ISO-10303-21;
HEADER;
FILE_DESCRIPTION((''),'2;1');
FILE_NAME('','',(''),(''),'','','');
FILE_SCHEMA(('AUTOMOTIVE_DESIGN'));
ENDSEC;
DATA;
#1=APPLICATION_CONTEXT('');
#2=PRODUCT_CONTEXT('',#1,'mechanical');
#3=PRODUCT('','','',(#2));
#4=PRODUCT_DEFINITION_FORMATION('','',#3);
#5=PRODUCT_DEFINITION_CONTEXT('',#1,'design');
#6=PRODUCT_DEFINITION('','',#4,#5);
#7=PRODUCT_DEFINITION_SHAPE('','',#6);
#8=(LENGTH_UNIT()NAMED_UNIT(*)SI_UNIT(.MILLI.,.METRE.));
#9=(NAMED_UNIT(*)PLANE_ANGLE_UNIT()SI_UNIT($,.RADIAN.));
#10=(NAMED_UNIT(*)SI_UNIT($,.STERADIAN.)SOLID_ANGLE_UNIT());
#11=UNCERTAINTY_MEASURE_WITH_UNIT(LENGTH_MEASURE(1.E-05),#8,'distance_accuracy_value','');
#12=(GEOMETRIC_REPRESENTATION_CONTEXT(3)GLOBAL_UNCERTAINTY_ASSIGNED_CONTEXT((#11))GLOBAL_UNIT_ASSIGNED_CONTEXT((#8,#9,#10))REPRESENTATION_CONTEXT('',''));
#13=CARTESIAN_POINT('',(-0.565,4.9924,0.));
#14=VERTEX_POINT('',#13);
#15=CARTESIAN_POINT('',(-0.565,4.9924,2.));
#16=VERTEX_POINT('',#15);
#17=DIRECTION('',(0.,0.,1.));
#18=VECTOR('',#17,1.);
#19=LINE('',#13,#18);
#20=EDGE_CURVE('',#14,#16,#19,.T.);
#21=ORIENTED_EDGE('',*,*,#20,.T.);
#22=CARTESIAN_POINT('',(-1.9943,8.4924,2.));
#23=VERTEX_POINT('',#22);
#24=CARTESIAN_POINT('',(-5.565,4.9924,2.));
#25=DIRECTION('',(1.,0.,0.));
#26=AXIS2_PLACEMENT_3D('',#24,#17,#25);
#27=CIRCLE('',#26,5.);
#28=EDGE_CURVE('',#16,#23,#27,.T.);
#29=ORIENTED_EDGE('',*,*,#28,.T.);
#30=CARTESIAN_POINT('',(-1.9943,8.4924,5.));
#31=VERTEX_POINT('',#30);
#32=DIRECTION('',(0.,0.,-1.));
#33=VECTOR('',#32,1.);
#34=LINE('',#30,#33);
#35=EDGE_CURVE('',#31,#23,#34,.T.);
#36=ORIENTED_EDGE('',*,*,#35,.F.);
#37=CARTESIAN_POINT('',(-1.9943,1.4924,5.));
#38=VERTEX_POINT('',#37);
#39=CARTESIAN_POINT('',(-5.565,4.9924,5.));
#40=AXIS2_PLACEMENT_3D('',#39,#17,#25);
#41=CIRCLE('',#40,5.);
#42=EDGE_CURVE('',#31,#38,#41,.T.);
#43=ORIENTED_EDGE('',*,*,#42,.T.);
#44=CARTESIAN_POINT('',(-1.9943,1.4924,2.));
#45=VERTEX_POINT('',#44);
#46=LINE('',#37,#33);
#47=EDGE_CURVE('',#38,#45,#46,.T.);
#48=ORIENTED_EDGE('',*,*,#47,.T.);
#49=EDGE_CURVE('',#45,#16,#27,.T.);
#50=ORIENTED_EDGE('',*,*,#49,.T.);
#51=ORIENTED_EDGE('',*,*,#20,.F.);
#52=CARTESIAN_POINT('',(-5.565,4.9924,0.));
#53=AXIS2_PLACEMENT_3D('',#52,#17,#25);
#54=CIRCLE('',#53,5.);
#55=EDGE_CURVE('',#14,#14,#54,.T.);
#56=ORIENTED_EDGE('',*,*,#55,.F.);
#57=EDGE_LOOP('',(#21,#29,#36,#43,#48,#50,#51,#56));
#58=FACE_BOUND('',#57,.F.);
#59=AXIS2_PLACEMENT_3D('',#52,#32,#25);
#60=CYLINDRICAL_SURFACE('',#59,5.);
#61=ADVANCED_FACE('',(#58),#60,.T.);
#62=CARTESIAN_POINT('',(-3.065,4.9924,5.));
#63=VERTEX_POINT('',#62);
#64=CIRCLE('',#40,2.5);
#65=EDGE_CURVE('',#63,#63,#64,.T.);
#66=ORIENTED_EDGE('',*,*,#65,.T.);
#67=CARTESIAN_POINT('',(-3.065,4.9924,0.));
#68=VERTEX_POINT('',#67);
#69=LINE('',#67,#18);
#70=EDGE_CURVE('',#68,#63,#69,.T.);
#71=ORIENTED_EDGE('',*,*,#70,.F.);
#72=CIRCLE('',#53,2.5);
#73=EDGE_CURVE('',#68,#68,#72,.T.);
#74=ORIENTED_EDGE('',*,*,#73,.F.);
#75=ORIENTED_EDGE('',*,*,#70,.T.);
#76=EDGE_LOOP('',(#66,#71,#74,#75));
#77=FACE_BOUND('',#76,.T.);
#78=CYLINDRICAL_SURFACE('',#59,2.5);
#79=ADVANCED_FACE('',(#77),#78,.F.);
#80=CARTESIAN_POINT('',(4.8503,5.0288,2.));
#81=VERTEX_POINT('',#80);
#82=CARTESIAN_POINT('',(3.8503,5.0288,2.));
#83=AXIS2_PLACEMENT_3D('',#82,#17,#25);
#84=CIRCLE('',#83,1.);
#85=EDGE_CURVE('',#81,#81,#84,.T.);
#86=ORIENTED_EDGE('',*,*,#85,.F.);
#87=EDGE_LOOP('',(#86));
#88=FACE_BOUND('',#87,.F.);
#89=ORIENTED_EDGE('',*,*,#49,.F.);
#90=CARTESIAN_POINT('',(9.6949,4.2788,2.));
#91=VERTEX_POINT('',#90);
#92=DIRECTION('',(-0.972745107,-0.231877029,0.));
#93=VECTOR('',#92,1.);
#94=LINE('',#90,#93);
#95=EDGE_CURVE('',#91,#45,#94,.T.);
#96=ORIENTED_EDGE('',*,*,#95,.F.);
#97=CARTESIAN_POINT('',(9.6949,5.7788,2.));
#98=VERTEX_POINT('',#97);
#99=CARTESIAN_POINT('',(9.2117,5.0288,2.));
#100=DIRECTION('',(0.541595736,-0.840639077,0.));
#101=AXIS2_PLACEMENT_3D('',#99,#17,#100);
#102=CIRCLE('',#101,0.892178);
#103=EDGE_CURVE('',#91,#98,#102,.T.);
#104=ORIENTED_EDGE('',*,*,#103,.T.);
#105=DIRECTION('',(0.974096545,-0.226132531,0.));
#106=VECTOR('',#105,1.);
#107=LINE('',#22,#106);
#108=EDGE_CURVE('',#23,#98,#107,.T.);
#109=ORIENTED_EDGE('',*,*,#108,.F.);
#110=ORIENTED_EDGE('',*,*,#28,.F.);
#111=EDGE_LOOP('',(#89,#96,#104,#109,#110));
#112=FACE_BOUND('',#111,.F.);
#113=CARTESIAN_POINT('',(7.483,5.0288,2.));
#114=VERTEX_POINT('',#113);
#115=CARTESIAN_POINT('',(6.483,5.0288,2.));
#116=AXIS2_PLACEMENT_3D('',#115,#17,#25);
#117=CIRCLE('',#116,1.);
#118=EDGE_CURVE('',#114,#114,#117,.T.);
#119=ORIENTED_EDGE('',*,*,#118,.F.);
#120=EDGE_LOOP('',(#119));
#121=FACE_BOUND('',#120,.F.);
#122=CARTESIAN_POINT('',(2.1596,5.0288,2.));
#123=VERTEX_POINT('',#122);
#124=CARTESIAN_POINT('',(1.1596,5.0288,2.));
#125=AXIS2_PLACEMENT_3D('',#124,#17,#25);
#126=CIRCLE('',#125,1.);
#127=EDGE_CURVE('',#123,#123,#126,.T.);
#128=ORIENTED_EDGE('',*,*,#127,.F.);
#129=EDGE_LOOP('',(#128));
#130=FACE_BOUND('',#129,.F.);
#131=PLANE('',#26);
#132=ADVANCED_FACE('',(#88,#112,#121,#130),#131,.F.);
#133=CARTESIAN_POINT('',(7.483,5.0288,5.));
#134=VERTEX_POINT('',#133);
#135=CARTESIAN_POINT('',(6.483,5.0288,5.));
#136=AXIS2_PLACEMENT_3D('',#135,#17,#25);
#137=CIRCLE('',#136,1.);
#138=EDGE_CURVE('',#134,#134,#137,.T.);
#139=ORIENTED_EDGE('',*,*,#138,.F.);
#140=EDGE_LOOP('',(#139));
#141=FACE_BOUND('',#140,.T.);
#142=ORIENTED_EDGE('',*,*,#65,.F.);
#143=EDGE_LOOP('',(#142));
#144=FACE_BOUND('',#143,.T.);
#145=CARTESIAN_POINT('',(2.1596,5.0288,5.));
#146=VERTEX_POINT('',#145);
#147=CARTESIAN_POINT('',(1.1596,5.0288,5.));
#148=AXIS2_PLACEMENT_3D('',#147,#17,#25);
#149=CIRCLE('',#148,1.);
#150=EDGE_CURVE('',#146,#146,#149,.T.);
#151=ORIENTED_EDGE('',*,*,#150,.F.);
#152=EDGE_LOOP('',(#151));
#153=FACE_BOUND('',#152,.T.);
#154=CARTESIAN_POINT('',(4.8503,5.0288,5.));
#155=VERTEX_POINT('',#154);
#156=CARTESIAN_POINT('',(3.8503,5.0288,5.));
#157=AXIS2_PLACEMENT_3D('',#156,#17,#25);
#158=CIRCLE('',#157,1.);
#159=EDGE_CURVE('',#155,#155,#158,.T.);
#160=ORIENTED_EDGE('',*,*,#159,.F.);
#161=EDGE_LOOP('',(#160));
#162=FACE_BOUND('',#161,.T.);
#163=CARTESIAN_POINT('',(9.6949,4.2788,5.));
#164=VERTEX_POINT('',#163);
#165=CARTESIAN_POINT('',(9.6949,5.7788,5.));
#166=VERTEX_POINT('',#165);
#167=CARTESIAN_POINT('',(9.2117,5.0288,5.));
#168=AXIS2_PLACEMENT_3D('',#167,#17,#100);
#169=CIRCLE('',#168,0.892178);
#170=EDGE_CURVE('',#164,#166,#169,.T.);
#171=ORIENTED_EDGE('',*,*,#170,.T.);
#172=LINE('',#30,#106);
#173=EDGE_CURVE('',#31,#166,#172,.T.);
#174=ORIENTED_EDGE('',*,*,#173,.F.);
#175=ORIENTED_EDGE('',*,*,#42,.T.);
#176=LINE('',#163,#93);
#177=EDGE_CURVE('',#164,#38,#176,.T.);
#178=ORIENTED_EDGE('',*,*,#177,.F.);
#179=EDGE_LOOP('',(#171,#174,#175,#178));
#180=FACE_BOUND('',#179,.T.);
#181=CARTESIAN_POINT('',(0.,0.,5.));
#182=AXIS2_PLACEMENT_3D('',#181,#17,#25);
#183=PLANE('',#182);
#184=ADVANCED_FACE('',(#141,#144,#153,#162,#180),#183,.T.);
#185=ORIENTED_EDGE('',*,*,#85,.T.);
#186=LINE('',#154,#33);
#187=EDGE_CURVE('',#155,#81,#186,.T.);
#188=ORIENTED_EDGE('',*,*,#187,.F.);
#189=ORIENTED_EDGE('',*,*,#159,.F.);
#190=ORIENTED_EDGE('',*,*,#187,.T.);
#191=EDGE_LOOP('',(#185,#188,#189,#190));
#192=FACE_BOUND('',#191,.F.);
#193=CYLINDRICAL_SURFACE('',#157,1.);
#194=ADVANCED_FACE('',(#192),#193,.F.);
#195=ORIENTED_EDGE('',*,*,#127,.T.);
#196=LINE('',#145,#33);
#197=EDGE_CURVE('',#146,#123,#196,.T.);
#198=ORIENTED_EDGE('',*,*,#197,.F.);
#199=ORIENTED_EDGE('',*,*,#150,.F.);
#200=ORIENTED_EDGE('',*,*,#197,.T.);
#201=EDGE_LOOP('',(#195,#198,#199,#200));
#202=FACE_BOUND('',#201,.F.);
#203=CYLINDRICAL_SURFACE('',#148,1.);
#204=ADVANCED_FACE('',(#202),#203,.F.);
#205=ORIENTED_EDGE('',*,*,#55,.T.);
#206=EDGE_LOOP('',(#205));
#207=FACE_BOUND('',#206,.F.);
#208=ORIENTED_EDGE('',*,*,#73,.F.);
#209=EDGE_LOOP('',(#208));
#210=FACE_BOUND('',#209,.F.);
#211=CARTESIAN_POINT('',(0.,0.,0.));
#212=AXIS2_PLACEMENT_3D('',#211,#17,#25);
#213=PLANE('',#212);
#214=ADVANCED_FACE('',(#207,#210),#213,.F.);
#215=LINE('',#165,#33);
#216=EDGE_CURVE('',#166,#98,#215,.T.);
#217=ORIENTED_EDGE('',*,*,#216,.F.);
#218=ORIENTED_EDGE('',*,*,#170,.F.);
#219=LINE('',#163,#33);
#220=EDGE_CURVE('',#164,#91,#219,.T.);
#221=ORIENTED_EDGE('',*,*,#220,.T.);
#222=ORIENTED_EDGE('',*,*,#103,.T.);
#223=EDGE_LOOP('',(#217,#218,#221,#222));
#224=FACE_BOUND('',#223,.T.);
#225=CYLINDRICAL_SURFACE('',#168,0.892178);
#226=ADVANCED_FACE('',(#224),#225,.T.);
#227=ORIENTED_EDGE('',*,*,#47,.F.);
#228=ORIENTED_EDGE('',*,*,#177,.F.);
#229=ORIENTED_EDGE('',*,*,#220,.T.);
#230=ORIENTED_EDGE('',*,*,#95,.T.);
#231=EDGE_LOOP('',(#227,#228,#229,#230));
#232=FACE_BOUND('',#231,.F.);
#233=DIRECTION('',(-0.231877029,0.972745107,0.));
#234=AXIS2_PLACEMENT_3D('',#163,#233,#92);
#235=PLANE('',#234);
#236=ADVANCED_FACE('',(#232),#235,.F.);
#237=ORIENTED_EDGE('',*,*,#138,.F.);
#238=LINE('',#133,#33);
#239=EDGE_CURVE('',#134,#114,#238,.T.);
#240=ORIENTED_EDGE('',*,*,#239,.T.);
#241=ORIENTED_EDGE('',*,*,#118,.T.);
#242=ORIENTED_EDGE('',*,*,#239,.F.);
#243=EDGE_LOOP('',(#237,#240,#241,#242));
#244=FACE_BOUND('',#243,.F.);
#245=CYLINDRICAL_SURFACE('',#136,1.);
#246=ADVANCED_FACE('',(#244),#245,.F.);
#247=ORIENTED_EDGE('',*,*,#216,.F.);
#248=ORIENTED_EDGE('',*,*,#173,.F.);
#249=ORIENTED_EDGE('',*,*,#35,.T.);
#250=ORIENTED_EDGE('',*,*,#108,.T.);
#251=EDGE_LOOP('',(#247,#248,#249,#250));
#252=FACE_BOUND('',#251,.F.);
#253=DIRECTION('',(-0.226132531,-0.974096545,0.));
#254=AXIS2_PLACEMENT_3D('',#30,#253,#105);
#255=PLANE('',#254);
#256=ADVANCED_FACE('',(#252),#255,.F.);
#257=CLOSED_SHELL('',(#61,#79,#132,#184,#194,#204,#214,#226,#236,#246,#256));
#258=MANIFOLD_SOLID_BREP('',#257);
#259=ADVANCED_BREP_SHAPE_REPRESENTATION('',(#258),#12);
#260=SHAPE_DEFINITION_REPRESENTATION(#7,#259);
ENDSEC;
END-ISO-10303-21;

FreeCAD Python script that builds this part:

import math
import FreeCAD as App
import Part
import Sketcher
from FreeCAD import Vector
Q = App.Units.Quantity

doc = App.newDocument("Part")
body = doc.addObject("PartDesign::Body", "Body")

# Sketch on XY plane
sketch1 = doc.addObject("Sketcher::SketchObject", "Sketch")
body.addObject(sketch1)
sketch1.AttachmentSupport = (doc.XY_Plane, [""])
sketch1.MapMode = "FlatFace"
sketch1.addGeometry([
    Part.Circle(Vector(-5.565, 4.9924, 0), Vector(0, 0, 1), 5),
    Part.Circle(Vector(-5.565, 4.9924, 0), Vector(0, 0, 1), 2.5),
], False)
sketch1.addConstraint([
    Sketcher.Constraint("Coincident", 1, 3, 0, 3),
    Sketcher.Constraint("Diameter", 0, Q("10 mm")),
    Sketcher.Constraint("Diameter", 1, Q("5 mm")),
    Sketcher.Constraint("DistanceX", 0, 3, -1, 1, Q("5.565 mm")),
    Sketcher.Constraint("DistanceY", -1, 1, 0, 3, Q("4.9924 mm")),
])
pad1 = doc.addObject("PartDesign::Pad", "Pad")
body.addObject(pad1)
pad1.Profile = sketch1
pad1.Length = 5

# Sketch on XY plane
sketch2 = doc.addObject("Sketcher::SketchObject", "Sketch001")
body.addObject(sketch2)
sketch2.AttachmentSupport = (doc.XY_Plane, [""])
sketch2.MapMode = "FlatFace"
sketch2.AttachmentOffset = App.Placement(Vector(0, 0, 5), App.Rotation())
sketch2.addGeometry([
    Part.LineSegment(Vector(9.6949, 5.7788, 0), Vector(-1.9943, 8.4924, 0)),  # 0
    Part.ArcOfCircle(Part.Circle(Vector(-5.565, 4.9924, 0), Vector(0, 0, 1), 5), math.radians(-44.427118), math.radians(44.427118)),  # 1
    Part.LineSegment(Vector(-1.9943, 1.4924, 0), Vector(9.6949, 4.2788, 0)),  # 2
    Part.ArcOfCircle(Part.Circle(Vector(9.2117, 5.0288, 0), Vector(0, 0, 1), 0.892178), math.radians(-57.207666), math.radians(57.207666)),  # 3
    Part.Circle(Vector(1.1596, 5.0288, 0), Vector(0, 0, 1), 1),  # 4
    Part.Circle(Vector(3.8503, 5.0288, 0), Vector(0, 0, 1), 1),  # 5
    Part.Circle(Vector(6.483, 5.0288, 0), Vector(0, 0, 1), 1),  # 6
], False)
sketch2.addConstraint([
    Sketcher.Constraint("Coincident", 0, 2, 1, 2),
    Sketcher.Constraint("Coincident", 1, 1, 2, 1),
    Sketcher.Constraint("Coincident", 2, 2, 3, 1),
    Sketcher.Constraint("Coincident", 3, 2, 0, 1),
    Sketcher.Constraint("Equal", 4, 5),
    Sketcher.Constraint("Equal", 5, 6),
    Sketcher.Constraint("Horizontal", 3, 3, 4, 3),
    Sketcher.Constraint("Horizontal", 4, 3, 5, 3),
    Sketcher.Constraint("Horizontal", 5, 3, 6, 3),
    Sketcher.Constraint("Vertical", 0, 2, 1, 1),
    Sketcher.Constraint("Vertical", 2, 2, 3, 2),
    Sketcher.Constraint("Diameter", 4, Q("2 mm")),
    Sketcher.Constraint("Radius", 1, Q("5 mm")),
    Sketcher.Constraint("Distance", 0, Q("12 mm")),
    Sketcher.Constraint("DistanceY", 1, 1, 0, 2, Q("7 mm")),
    Sketcher.Constraint("Angle", 0, Q("166.9305 deg")),
    Sketcher.Constraint("Radius", 3, Q("0.8922 mm")),
    Sketcher.Constraint("DistanceY", 2, 2, 3, 2, Q("1.5 mm")),
    Sketcher.Constraint("DistanceX", 1, 3, -1, 1, Q("5.565 mm")),
    Sketcher.Constraint("DistanceX", -1, 1, 6, 3, Q("6.483 mm")),
    Sketcher.Constraint("DistanceX", 4, 3, 3, 3, Q("8.052 mm")),
    Sketcher.Constraint("DistanceY", -1, 1, 1, 3, Q("4.9924 mm")),
    Sketcher.Constraint("DistanceX", -1, 1, 5, 3, Q("3.8503 mm")),
])
pad2 = doc.addObject("PartDesign::Pad", "Pad001")
body.addObject(pad2)
pad2.Profile = sketch2
pad2.Length = 3
pad2.Reversed = True

doc.recompute()
